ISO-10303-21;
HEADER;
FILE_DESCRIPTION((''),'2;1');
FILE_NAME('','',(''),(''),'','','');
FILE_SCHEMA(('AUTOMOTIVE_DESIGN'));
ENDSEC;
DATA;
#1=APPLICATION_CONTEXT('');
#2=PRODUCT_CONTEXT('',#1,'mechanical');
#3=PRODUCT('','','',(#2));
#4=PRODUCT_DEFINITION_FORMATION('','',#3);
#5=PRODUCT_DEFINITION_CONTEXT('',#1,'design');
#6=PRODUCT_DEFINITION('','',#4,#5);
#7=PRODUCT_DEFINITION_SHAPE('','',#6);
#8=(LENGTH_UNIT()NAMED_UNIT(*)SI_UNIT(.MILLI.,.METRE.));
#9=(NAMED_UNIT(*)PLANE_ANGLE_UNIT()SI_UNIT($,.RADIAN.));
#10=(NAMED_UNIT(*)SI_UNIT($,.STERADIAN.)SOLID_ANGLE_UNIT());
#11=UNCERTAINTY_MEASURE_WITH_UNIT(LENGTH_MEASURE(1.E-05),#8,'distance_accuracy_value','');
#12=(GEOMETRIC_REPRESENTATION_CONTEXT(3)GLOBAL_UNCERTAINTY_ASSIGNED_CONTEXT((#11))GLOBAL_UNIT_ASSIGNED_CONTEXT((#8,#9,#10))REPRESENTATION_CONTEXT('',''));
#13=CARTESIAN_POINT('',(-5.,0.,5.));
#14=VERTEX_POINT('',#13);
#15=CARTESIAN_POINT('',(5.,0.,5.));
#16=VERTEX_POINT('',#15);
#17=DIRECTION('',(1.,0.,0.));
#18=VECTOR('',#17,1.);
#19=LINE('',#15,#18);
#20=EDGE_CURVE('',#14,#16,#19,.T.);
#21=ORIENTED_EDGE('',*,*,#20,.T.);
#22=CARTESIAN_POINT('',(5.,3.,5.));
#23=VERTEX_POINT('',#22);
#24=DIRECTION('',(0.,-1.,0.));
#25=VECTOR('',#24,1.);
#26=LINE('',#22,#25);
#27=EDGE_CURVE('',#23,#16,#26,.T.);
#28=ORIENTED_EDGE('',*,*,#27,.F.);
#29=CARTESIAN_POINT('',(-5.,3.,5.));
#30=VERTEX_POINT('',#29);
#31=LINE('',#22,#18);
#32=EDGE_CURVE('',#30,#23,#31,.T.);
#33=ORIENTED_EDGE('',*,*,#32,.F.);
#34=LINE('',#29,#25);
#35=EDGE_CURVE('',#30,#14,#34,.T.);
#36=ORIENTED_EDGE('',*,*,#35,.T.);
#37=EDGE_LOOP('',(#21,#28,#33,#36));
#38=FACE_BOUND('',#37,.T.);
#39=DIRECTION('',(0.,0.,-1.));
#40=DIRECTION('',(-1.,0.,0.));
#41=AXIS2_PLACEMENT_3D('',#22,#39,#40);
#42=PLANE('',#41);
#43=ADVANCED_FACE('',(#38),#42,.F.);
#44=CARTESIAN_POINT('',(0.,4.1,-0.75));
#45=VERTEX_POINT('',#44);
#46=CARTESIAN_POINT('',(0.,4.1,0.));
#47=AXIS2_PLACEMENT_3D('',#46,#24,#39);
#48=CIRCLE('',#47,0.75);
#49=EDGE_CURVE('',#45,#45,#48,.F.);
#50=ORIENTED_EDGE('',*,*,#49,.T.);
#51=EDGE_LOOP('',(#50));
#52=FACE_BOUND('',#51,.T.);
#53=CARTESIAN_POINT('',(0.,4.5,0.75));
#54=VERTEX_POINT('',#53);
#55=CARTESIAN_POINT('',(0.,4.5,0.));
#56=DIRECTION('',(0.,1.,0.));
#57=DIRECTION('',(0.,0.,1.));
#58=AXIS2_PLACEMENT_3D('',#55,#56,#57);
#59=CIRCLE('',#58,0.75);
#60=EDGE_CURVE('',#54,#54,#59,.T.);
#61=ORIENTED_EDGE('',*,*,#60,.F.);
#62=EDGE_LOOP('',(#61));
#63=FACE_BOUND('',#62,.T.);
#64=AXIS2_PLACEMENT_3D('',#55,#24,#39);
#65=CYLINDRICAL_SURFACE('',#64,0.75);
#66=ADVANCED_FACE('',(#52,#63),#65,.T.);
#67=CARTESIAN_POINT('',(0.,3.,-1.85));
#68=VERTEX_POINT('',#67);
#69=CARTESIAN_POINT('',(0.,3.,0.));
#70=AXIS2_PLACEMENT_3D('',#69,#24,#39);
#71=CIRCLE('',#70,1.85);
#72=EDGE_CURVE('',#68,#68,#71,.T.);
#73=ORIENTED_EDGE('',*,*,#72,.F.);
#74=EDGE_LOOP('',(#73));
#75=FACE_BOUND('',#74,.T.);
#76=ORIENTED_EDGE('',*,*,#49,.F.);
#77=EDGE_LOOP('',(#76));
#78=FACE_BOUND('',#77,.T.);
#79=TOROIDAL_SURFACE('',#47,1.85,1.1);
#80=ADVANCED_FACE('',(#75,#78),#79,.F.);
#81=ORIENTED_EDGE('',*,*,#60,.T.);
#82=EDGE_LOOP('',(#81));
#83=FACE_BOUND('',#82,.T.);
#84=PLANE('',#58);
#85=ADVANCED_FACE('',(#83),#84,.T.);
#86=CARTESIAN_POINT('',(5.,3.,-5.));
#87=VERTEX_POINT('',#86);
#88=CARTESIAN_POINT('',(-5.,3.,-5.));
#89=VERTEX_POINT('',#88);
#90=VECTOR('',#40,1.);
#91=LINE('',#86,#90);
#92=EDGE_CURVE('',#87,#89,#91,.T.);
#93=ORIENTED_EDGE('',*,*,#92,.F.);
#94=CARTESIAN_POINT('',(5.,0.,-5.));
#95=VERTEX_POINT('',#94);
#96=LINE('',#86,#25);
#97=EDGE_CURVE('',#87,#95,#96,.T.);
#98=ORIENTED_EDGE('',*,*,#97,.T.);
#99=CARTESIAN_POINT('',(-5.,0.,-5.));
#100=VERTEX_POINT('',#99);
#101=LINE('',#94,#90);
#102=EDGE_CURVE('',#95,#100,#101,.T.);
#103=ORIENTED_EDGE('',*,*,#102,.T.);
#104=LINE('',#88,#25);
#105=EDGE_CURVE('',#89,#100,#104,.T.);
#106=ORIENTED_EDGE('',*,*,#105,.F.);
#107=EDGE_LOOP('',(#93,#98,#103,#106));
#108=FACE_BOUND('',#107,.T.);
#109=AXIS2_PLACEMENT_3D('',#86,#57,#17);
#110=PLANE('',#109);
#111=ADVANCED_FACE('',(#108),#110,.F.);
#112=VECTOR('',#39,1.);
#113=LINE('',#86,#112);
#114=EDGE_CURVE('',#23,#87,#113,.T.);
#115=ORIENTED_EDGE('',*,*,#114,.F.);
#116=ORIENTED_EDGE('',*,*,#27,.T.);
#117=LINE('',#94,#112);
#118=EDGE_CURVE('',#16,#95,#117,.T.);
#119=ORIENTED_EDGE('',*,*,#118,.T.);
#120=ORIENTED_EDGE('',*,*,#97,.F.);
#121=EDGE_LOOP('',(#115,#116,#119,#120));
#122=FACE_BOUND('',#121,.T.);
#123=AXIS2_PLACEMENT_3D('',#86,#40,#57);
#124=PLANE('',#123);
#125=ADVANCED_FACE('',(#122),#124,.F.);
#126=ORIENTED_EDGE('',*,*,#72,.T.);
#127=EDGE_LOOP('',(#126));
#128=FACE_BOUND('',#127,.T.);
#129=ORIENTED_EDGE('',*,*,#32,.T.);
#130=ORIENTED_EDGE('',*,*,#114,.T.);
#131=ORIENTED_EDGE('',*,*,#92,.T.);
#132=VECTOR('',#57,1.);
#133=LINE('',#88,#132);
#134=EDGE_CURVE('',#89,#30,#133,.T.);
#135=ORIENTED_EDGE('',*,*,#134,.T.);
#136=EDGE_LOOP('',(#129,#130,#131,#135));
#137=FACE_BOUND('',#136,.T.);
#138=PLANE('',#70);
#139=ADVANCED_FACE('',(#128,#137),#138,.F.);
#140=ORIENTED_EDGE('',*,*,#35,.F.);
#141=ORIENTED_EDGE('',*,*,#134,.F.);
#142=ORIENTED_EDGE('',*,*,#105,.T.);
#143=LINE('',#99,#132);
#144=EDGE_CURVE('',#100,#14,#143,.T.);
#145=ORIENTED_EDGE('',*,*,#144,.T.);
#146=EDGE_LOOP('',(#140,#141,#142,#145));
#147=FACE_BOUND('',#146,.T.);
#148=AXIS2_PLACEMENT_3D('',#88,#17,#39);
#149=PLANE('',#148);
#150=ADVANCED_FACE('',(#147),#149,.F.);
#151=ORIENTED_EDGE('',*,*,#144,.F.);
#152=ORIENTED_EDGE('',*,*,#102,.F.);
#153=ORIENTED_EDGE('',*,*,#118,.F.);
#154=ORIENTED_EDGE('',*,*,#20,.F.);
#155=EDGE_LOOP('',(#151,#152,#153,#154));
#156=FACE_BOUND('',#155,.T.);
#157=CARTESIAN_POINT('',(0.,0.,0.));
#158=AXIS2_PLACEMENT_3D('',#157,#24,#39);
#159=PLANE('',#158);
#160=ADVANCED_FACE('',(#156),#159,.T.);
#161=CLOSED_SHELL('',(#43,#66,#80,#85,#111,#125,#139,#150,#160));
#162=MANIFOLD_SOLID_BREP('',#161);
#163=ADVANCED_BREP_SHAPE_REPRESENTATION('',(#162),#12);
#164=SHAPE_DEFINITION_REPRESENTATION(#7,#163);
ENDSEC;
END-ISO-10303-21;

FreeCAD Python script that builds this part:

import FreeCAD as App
import Part
import Sketcher

V = App.Vector


def edges_at(feature, points):
    """Names of the edges that pass closest to the given points."""
    edges = feature.Shape.Edges
    near = lambda p: min(range(len(edges)), key=lambda i: edges[i].distToShape(Part.Vertex(*p))[0])
    return sorted({f"Edge{near(p) + 1}" for p in points})


def add_polygon(sketch, points):
    """Adds a closed chain of lines whose ends are joined by coincident constraints."""
    first, n = sketch.GeometryCount, len(points)
    for a, b in zip(points, points[1:] + points[:1]):
        sketch.addGeometry(Part.LineSegment(App.Vector(*a, 0), App.Vector(*b, 0)), False)
    for i in range(n):
        sketch.addConstraint(Sketcher.Constraint("Coincident", first + i, 2, first + (i + 1) % n, 1))

doc = App.newDocument("Part")
body = doc.addObject("PartDesign::Body", "Body")

sketch1 = body.newObject("Sketcher::SketchObject", "Sketch")
sketch1.AttachmentSupport = (doc.getObject("XZ_Plane"), [""])
sketch1.MapMode = "FlatFace"
add_polygon(sketch1, [(-5, -5), (-5, 5), (5, 5), (5, -5)])
sketch1.addConstraint(Sketcher.Constraint("Vertical", 0))
sketch1.addConstraint(Sketcher.Constraint("Horizontal", 1))
sketch1.addConstraint(Sketcher.Constraint("Vertical", 2))
sketch1.addConstraint(Sketcher.Constraint("Horizontal", 3))
sketch1.addConstraint(Sketcher.Constraint("Symmetric", 0, 2, 2, 2, -1, 1))
sketch1.addConstraint(Sketcher.Constraint("Equal", 3, 0))
sketch1.addConstraint(Sketcher.Constraint("DistanceX", 1, 1, 1, 2, 10.0))
pad1 = body.newObject("PartDesign::Pad", "Pad")
pad1.Profile = sketch1
pad1.Length = 3
pad1.Reversed = True

sketch2 = body.newObject("Sketcher::SketchObject", "Sketch001")
sketch2.AttachmentSupport = (doc.getObject("XZ_Plane"), [""])
sketch2.MapMode = "FlatFace"
sketch2.AttachmentOffset = App.Placement(V(0, 0, -3), App.Rotation())
sketch2.addGeometry(Part.Circle(V(0, 0, 0), V(0, 0, 1), 0.8), False)
sketch2.addConstraint(Sketcher.Constraint("Coincident", 0, 3, -1, 1))
sketch2.addConstraint(Sketcher.Constraint("Diameter", 0, 1.5))
pad2 = body.newObject("PartDesign::Pad", "Pad001")
pad2.Profile = sketch2
pad2.Length = 1.5
pad2.Reversed = True
doc.recompute()

fillet = body.newObject("PartDesign::Fillet", "Fillet")
fillet.Base = (pad2, edges_at(pad2, [(-0.75, 3, 0)]))
fillet.Radius = 1.1

doc.recompute()
